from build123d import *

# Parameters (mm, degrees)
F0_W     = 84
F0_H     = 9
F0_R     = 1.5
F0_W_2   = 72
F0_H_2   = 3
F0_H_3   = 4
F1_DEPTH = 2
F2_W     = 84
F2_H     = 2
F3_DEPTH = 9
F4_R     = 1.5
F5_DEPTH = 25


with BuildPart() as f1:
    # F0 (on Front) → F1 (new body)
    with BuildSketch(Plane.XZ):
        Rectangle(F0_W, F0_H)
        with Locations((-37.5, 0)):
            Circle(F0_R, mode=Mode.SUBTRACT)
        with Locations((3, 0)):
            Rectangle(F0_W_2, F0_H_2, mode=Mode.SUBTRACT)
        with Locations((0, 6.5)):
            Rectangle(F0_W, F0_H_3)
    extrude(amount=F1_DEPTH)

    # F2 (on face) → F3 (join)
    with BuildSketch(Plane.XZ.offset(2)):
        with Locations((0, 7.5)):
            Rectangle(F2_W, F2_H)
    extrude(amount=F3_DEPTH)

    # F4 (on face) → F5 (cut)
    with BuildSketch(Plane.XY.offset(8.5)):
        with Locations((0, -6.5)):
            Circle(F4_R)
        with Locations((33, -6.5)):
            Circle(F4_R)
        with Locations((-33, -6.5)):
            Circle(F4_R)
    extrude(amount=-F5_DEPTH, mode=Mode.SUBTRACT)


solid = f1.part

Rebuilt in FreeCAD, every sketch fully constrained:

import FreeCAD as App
import Part
import Sketcher
from FreeCAD import Vector

doc = App.newDocument("Part")
body = doc.addObject("PartDesign::Body", "Body")

sketch1 = body.newObject("Sketcher::SketchObject", "Sketch")
sketch1.AttachmentSupport = (doc.getObject("XZ_Plane"), [""])
sketch1.MapMode = "FlatFace"
sketch1.addGeometry([
    Part.LineSegment(Vector(-42, -4.5, 0), Vector(42, -4.5, 0)),
    Part.LineSegment(Vector(42, -4.5, 0), Vector(42, 8.5, 0)),
    Part.LineSegment(Vector(42, 8.5, 0), Vector(-42, 8.5, 0)),
    Part.LineSegment(Vector(-42, 8.5, 0), Vector(-42, -4.5, 0)),
    Part.Circle(Vector(-37.5, 0, 0), Vector(0, 0, 1), 1.5),
    Part.LineSegment(Vector(39, -1.5, 0), Vector(-33, -1.5, 0)),
    Part.LineSegment(Vector(-33, -1.5, 0), Vector(-33, 1.5, 0)),
    Part.LineSegment(Vector(-33, 1.5, 0), Vector(39, 1.5, 0)),
    Part.LineSegment(Vector(39, 1.5, 0), Vector(39, -1.5, 0)),
], False)
sketch1.addConstraint([
    Sketcher.Constraint("Coincident", 0, 2, 1, 1),
    Sketcher.Constraint("Coincident", 1, 2, 2, 1),
    Sketcher.Constraint("Coincident", 2, 2, 3, 1),
    Sketcher.Constraint("Coincident", 3, 2, 0, 1),
    Sketcher.Constraint("Coincident", 5, 2, 6, 1),
    Sketcher.Constraint("Coincident", 6, 2, 7, 1),
    Sketcher.Constraint("Coincident", 7, 2, 8, 1),
    Sketcher.Constraint("Coincident", 8, 2, 5, 1),
    Sketcher.Constraint("Horizontal", 0),
    Sketcher.Constraint("Vertical", 1),
    Sketcher.Constraint("Horizontal", 2),
    Sketcher.Constraint("Vertical", 3),
    Sketcher.Constraint("Horizontal", 5),
    Sketcher.Constraint("Vertical", 6),
    Sketcher.Constraint("Horizontal", 7),
    Sketcher.Constraint("Vertical", 8),
    Sketcher.Constraint("PointOnObject", 4, 3, -1),
    Sketcher.Constraint("Diameter", 4, 3.0),
    Sketcher.Constraint("DistanceX", 0, 1, 0, 2, 84.0),
    Sketcher.Constraint("DistanceX", 5, 2, 5, 1, 72.0),
    Sketcher.Constraint("DistanceY", 1, 1, 1, 2, 13.0),
    Sketcher.Constraint("DistanceY", 6, 1, 6, 2, 3.0),
    Sketcher.Constraint("DistanceX", -1, 1, 0, 2, 42.0),
    Sketcher.Constraint("DistanceX", 5, 2, -1, 1, 33.0),
    Sketcher.Constraint("DistanceY", 3, 2, 5, 2, 3.0),
    Sketcher.Constraint("DistanceX", 4, 3, -1, 1, 37.5),
    Sketcher.Constraint("DistanceY", 0, 2, -1, 1, 4.5),
])
pad1 = body.newObject("PartDesign::Pad", "Pad")
pad1.Profile = sketch1
pad1.Length = 2

sketch2 = body.newObject("Sketcher::SketchObject", "Sketch001")
sketch2.AttachmentSupport = (doc.getObject("XZ_Plane"), [""])
sketch2.MapMode = "FlatFace"
sketch2.AttachmentOffset = App.Placement(Vector(0, 0, 2), App.Rotation())
sketch2.addGeometry([
    Part.LineSegment(Vector(-42, 8.5, 0), Vector(-42, 6.5, 0)),
    Part.LineSegment(Vector(-42, 6.5, 0), Vector(42, 6.5, 0)),
    Part.LineSegment(Vector(42, 6.5, 0), Vector(42, 8.5, 0)),
    Part.LineSegment(Vector(42, 8.5, 0), Vector(-42, 8.5, 0)),
], False)
sketch2.addConstraint([
    Sketcher.Constraint("Coincident", 0, 2, 1, 1),
    Sketcher.Constraint("Coincident", 1, 2, 2, 1),
    Sketcher.Constraint("Coincident", 2, 2, 3, 1),
    Sketcher.Constraint("Coincident", 3, 2, 0, 1),
    Sketcher.Constraint("Vertical", 0),
    Sketcher.Constraint("Horizontal", 1),
    Sketcher.Constraint("Vertical", 2),
    Sketcher.Constraint("Horizontal", 3),
    Sketcher.Constraint("DistanceX", 1, 1, 1, 2, 84.0),
    Sketcher.Constraint("DistanceY", 0, 2, 0, 1, 2.0),
    Sketcher.Constraint("DistanceX", 0, 2, -1, 1, 42.0),
    Sketcher.Constraint("DistanceY", -1, 1, 0, 2, 6.5),
])
pad2 = body.newObject("PartDesign::Pad", "Pad001")
pad2.Profile = sketch2
pad2.Length = 9

sketch3 = body.newObject("Sketcher::SketchObject", "Sketch002")
sketch3.AttachmentSupport = (doc.getObject("XY_Plane"), [""])
sketch3.MapMode = "FlatFace"
sketch3.AttachmentOffset = App.Placement(Vector(0, 0, 8.5), App.Rotation())
sketch3.addGeometry([
    Part.Circle(Vector(0, -6.5, 0), Vector(0, 0, 1), 1.5),
    Part.Circle(Vector(33, -6.5, 0), Vector(0, 0, 1), 1.5),
    Part.Circle(Vector(-33, -6.5, 0), Vector(0, 0, 1), 1.5),
], False)
sketch3.addConstraint([
    Sketcher.Constraint("Equal", 0, 1),
    Sketcher.Constraint("Equal", 1, 2),
    Sketcher.Constraint("Symmetric", 1, 3, 2, 3, -2),
    Sketcher.Constraint("PointOnObject", 0, 3, -2),
    Sketcher.Constraint("Horizontal", 0, 3, 1, 3),
    Sketcher.Constraint("Diameter", 0, 3.0),
    Sketcher.Constraint("DistanceX", -1, 1, 1, 3, 33.0),
    Sketcher.Constraint("DistanceY", 0, 3, -1, 1, 6.5),
])
pocket1 = body.newObject("PartDesign::Pocket", "Pocket")
pocket1.Profile = sketch3
pocket1.Length = 25

doc.recompute()
